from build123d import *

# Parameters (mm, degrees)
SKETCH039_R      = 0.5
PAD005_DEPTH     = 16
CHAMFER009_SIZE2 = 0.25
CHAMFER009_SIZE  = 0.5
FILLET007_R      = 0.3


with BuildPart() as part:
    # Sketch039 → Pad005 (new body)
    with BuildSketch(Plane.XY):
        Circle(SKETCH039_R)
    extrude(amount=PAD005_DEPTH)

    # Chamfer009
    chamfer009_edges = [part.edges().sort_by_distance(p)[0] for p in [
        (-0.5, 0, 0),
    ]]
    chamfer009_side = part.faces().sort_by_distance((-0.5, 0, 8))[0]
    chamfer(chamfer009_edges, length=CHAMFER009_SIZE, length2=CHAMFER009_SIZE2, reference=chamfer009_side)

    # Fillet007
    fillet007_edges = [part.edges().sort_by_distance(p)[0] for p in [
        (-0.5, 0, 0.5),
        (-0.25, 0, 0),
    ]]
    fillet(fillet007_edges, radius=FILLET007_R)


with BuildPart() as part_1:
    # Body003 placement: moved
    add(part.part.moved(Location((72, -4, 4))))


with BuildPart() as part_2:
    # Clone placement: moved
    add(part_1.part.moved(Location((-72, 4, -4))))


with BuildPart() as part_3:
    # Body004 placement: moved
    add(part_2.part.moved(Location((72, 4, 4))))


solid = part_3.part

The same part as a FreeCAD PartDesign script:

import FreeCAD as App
import Part
import Sketcher
Q = App.Units.Quantity


def edges_at(feature, points):
    """Names of the edges that pass closest to the given points."""
    edges = feature.Shape.Edges
    near = lambda p: min(range(len(edges)), key=lambda i: edges[i].distToShape(Part.Vertex(*p))[0])
    return sorted({f"Edge{near(p) + 1}" for p in points})

doc = App.newDocument("Part")
params = doc.addObject("Spreadsheet::Sheet", "Params")
for row, (alias, value) in enumerate([
    ("sketch1_diameter", "1 mm"),
    ("pad1_length", "16 mm"),
    ("chamfer_size", "0.5 mm"),
    ("chamfer_size2", "0.25 mm"),
    ("fillet_radius", "0.3 mm"),
], start=1):
    params.set(f"A{row}", alias)
    params.set(f"B{row}", "=" + value)
    params.setAlias(f"B{row}", alias)

body = doc.addObject("PartDesign::Body", "Body")

# Sketch on XY plane
sketch1 = doc.addObject("Sketcher::SketchObject", "Sketch")
body.addObject(sketch1)
sketch1.AttachmentSupport = (doc.XY_Plane, [""])
sketch1.MapMode = "FlatFace"
sketch1.addGeometry(Part.Circle(App.Vector(0, 0, 0), App.Vector(0, 0, 1), 0.5), False)
sketch1.addConstraint([
    Sketcher.Constraint("Coincident", 0, 3, -1, 1),
    Sketcher.Constraint("Diameter", 0, Q("1 mm")),
])
sketch1.setExpression("Constraints[1]", "Params.sketch1_diameter")
pad1 = doc.addObject("PartDesign::Pad", "Pad")
body.addObject(pad1)
pad1.Profile = sketch1
pad1.setExpression("Length", "Params.pad1_length")
doc.recompute()

chamfer = doc.addObject("PartDesign::Chamfer", "Chamfer")
body.addObject(chamfer)
chamfer.Base = (pad1, edges_at(pad1, [(-0.5, 0, 0)]))
chamfer.ChamferType = "Two distances"
chamfer.setExpression("Size", "Params.chamfer_size")
chamfer.setExpression("Size2", "Params.chamfer_size2")
doc.recompute()

fillet = doc.addObject("PartDesign::Fillet", "Fillet")
body.addObject(fillet)
fillet.Base = (chamfer, edges_at(chamfer, [(-0.5, 0, 0.5), (-0.25, 0, 0)]))
fillet.setExpression("Radius", "Params.fillet_radius")
body2 = doc.addObject("PartDesign::Body", "Body001")
doc.recompute()

body.Placement = App.Placement(App.Vector(72, -4, 4), App.Rotation(App.Vector(0, 0, 1), 0))
boolean = doc.addObject("PartDesign::Boolean", "Boolean")
body2.addObject(boolean)
boolean.Type = "Fuse"
boolean.addObjects([body])
body3 = doc.addObject("PartDesign::Body", "Body002")
doc.recompute()

body2.Placement = App.Placement(App.Vector(-72, 4, -4), App.Rotation(App.Vector(0, 0, 1), 0))
boolean2 = doc.addObject("PartDesign::Boolean", "Boolean001")
body3.addObject(boolean2)
boolean2.Type = "Fuse"
boolean2.addObjects([body2])
body4 = doc.addObject("PartDesign::Body", "Body003")
doc.recompute()

body3.Placement = App.Placement(App.Vector(72, 4, 4), App.Rotation(App.Vector(0, 0, 1), 0))
boolean3 = doc.addObject("PartDesign::Boolean", "Boolean002")
body4.addObject(boolean3)
boolean3.Type = "Fuse"
boolean3.addObjects([body3])

doc.recompute()
